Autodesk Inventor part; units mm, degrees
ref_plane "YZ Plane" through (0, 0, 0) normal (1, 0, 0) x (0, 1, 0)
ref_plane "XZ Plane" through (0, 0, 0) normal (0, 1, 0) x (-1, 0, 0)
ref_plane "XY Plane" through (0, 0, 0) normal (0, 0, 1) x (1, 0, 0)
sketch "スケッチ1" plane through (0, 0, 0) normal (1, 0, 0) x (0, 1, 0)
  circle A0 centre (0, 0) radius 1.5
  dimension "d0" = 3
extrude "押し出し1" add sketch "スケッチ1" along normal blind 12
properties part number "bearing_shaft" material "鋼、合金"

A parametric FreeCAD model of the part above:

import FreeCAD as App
import Part
import Sketcher
from FreeCAD import Vector
Q = App.Units.Quantity

doc = App.newDocument("Part")
body = doc.addObject("PartDesign::Body", "Body")

# Sketch on YZ plane
sketch1 = doc.addObject("Sketcher::SketchObject", "Sketch")
body.addObject(sketch1)
sketch1.AttachmentSupport = (doc.YZ_Plane, [""])
sketch1.MapMode = "FlatFace"
sketch1.addGeometry(Part.Circle(Vector(0, 0, 0), Vector(0, 0, 1), 1.5), False)
sketch1.addConstraint([
    Sketcher.Constraint("Coincident", 0, 3, -1, 1),
    Sketcher.Constraint("Diameter", 0, Q("3 mm")),
])
pad1 = doc.addObject("PartDesign::Pad", "Pad")
body.addObject(pad1)
pad1.Profile = sketch1
pad1.Length = 12

doc.recompute()
